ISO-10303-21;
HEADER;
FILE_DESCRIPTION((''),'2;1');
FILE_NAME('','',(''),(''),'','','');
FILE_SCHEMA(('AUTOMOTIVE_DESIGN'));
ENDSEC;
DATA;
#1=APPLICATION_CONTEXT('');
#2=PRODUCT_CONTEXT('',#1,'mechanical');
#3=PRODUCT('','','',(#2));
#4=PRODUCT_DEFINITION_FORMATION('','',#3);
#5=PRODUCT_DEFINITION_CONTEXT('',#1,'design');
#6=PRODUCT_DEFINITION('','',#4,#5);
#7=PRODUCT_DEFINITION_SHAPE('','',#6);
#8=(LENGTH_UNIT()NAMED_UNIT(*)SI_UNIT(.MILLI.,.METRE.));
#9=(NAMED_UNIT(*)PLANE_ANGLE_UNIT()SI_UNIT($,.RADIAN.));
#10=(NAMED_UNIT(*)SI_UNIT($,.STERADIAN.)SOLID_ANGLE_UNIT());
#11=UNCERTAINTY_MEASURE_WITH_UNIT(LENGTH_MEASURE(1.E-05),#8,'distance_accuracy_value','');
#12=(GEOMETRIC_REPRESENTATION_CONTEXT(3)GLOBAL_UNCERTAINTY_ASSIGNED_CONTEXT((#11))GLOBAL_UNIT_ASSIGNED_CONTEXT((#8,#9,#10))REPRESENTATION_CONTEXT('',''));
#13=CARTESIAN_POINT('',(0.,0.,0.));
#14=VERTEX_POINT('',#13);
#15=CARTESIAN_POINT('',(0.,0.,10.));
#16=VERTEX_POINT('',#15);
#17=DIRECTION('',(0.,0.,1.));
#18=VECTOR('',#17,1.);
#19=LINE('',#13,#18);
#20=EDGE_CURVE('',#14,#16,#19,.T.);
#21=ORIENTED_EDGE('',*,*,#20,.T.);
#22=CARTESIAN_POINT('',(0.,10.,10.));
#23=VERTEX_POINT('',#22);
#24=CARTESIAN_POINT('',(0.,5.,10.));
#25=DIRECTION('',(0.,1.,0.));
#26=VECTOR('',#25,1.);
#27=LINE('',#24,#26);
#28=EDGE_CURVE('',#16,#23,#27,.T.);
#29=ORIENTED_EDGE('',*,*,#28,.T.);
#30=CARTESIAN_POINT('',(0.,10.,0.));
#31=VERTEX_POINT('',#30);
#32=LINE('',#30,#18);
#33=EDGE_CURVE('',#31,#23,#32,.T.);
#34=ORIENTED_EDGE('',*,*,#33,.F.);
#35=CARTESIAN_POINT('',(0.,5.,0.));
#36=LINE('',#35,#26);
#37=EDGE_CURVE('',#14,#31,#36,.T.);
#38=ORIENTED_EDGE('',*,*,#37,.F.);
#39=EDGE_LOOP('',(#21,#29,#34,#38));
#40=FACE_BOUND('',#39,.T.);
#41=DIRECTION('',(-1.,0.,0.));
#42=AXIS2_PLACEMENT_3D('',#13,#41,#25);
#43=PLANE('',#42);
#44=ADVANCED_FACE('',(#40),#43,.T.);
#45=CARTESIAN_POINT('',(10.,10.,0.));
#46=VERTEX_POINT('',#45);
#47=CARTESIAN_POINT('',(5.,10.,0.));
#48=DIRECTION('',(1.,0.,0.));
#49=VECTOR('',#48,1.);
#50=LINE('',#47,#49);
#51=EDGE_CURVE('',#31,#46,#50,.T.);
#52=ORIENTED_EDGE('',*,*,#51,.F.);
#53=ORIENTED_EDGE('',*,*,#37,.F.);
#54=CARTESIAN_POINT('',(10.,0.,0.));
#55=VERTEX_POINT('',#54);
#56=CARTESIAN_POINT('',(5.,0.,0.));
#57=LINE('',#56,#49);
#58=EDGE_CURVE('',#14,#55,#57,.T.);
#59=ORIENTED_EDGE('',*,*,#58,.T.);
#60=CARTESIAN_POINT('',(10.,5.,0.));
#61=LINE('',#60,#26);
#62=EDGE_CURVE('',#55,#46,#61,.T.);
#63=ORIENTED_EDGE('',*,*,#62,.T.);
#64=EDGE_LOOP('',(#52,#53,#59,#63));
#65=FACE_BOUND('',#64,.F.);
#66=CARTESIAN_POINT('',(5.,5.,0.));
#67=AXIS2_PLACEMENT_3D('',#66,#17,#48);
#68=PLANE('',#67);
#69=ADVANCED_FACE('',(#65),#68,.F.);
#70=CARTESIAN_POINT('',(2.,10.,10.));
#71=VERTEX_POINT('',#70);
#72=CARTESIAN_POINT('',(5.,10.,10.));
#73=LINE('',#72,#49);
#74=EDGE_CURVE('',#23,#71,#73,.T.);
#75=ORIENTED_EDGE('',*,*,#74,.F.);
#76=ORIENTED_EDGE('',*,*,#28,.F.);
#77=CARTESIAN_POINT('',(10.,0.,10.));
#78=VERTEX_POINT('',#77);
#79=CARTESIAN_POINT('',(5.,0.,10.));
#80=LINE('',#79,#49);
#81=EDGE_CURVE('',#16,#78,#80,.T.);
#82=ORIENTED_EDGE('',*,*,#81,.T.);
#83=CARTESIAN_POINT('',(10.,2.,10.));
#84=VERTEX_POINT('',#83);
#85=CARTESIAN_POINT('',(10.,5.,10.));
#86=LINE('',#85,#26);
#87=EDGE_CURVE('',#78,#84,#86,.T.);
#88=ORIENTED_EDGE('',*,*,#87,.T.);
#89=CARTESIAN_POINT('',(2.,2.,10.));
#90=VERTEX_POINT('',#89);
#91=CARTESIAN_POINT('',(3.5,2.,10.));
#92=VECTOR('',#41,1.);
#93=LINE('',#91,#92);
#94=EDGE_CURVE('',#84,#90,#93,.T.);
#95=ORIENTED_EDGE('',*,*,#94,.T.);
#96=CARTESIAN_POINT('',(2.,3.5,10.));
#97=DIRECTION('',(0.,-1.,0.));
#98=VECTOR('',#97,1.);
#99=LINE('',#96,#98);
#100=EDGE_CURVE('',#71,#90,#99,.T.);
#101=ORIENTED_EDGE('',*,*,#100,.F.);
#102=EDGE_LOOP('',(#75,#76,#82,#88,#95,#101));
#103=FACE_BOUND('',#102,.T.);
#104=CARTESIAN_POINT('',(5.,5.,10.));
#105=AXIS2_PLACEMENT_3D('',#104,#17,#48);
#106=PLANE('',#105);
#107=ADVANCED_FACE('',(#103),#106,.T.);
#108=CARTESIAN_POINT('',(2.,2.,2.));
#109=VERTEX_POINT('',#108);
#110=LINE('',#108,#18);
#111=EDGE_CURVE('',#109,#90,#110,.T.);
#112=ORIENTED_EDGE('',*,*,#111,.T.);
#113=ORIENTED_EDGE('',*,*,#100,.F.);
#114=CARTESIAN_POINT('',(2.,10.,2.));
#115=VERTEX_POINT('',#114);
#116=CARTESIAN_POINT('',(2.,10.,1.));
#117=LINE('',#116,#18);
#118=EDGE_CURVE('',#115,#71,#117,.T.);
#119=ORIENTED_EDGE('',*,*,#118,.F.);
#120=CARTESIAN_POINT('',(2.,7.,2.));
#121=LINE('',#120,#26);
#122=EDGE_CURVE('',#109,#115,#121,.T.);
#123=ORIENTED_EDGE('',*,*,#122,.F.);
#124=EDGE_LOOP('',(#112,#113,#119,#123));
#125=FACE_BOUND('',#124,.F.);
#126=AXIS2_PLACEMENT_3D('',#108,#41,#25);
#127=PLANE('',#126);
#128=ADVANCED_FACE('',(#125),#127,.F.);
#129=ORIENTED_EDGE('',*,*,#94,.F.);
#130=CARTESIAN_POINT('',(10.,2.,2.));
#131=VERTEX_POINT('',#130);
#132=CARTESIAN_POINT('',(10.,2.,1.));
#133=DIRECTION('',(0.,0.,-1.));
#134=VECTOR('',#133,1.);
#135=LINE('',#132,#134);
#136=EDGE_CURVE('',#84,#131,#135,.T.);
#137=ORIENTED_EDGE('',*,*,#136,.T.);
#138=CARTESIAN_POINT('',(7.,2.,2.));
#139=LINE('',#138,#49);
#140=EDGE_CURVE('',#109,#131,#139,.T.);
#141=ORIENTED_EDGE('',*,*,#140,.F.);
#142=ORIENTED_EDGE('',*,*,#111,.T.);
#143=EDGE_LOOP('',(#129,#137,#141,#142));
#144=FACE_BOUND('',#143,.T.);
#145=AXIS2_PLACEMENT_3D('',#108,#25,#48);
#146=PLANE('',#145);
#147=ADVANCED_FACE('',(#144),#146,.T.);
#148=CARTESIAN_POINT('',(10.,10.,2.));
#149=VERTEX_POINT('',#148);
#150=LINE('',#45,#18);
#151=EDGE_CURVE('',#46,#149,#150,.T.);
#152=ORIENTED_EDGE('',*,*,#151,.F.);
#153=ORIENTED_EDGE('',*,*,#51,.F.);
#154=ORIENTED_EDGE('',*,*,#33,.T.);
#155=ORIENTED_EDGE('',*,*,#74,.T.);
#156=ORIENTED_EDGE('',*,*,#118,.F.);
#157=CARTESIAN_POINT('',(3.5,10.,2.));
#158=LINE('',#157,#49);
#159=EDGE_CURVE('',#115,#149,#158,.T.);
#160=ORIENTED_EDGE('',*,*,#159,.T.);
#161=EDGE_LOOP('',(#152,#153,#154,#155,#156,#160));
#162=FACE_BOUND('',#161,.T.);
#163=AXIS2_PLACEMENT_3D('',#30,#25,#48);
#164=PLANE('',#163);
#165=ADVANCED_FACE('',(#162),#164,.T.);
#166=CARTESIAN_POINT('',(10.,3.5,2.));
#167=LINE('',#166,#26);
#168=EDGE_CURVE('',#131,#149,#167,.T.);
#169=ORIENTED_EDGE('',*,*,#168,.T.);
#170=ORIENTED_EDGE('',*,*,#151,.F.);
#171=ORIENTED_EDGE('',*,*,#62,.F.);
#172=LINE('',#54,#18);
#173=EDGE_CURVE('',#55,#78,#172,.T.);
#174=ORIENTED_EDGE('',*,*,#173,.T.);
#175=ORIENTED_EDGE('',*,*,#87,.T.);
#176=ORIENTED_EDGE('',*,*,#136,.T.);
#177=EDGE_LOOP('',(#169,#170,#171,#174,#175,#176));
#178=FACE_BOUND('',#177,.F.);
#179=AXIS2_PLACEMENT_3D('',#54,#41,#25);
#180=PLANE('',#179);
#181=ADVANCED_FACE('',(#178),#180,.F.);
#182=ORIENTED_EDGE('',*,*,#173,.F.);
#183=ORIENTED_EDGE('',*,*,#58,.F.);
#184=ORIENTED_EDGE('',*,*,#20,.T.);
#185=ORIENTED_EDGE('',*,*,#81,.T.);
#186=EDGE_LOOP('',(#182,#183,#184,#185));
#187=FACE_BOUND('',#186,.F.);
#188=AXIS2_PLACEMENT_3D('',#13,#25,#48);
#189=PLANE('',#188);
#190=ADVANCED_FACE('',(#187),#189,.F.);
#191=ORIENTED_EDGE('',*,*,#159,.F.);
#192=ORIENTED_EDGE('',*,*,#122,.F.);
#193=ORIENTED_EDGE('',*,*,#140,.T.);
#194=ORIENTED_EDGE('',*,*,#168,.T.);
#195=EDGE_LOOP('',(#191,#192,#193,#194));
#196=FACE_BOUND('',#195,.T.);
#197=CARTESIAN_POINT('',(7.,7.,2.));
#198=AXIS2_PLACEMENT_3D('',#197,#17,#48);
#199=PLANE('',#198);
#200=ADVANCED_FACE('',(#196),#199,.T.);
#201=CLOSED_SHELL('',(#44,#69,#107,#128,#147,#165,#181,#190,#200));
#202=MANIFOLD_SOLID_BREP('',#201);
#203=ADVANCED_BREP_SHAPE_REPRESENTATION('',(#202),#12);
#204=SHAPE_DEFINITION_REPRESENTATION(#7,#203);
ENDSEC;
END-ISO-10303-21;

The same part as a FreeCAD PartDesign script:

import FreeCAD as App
import Part
import Sketcher
Q = App.Units.Quantity


def add_polygon(sketch, points):
    """Adds a closed chain of lines whose ends are joined by coincident constraints."""
    first, n = sketch.GeometryCount, len(points)
    for a, b in zip(points, points[1:] + points[:1]):
        sketch.addGeometry(Part.LineSegment(App.Vector(*a, 0), App.Vector(*b, 0)), False)
    for i in range(n):
        sketch.addConstraint(Sketcher.Constraint("Coincident", first + i, 2, first + (i + 1) % n, 1))

doc = App.newDocument("Part")
body = doc.addObject("PartDesign::Body", "Body")

# Sketch on XY plane
sketch1 = body.newObject("Sketcher::SketchObject", "Sketch")
sketch1.AttachmentSupport = (doc.getObject("XY_Plane"), [""])
sketch1.MapMode = "FlatFace"
sketch1.AttachmentOffset = App.Placement(App.Vector(0, 0, 2), App.Rotation())
add_polygon(sketch1, [(2, 12), (2, 2), (12, 2), (12, 12)])  # lines 0-3
sketch1.addConstraint(Sketcher.Constraint("Vertical", 0))
sketch1.addConstraint(Sketcher.Constraint("Horizontal", 1))
sketch1.addConstraint(Sketcher.Constraint("Vertical", 2))
sketch1.addConstraint(Sketcher.Constraint("Horizontal", 3))
sketch1.addConstraint(Sketcher.Constraint("Equal", 3, 0))
sketch1.addConstraint(Sketcher.Constraint("DistanceX", 1, 1, 1, 2, Q("10 mm")))
sketch1.addConstraint(Sketcher.Constraint("DistanceX", -1, 1, 0, 2, Q("2 mm")))
sketch1.addConstraint(Sketcher.Constraint("DistanceY", -1, 1, 0, 2, Q("2 mm")))
pad1 = body.newObject("PartDesign::Pad", "Pad")
pad1.Profile = sketch1
pad1.Length = 10
body2 = doc.addObject("PartDesign::Body", "Body001")

# Sketch on XY plane
sketch2 = body2.newObject("Sketcher::SketchObject", "Sketch001")
sketch2.AttachmentSupport = (doc.getObject("XY_Plane001"), [""])
sketch2.MapMode = "FlatFace"
add_polygon(sketch2, [(0, 10), (0, 0), (10, 0), (10, 10)])  # lines 0-3
sketch2.addConstraint(Sketcher.Constraint("Vertical", 0))
sketch2.addConstraint(Sketcher.Constraint("Horizontal", 1))
sketch2.addConstraint(Sketcher.Constraint("Vertical", 2))
sketch2.addConstraint(Sketcher.Constraint("Horizontal", 3))
sketch2.addConstraint(Sketcher.Constraint("Coincident", 0, 2, -1, 1))
sketch2.addConstraint(Sketcher.Constraint("Equal", 3, 0))
sketch2.addConstraint(Sketcher.Constraint("DistanceX", 1, 1, 1, 2, Q("10 mm")))
pad2 = body2.newObject("PartDesign::Pad", "Pad001")
pad2.Profile = sketch2
pad2.Length = 10
doc.recompute()

boolean = body2.newObject("PartDesign::Boolean", "Boolean")
boolean.Type = "Cut"
boolean.addObjects([body])

doc.recompute()
